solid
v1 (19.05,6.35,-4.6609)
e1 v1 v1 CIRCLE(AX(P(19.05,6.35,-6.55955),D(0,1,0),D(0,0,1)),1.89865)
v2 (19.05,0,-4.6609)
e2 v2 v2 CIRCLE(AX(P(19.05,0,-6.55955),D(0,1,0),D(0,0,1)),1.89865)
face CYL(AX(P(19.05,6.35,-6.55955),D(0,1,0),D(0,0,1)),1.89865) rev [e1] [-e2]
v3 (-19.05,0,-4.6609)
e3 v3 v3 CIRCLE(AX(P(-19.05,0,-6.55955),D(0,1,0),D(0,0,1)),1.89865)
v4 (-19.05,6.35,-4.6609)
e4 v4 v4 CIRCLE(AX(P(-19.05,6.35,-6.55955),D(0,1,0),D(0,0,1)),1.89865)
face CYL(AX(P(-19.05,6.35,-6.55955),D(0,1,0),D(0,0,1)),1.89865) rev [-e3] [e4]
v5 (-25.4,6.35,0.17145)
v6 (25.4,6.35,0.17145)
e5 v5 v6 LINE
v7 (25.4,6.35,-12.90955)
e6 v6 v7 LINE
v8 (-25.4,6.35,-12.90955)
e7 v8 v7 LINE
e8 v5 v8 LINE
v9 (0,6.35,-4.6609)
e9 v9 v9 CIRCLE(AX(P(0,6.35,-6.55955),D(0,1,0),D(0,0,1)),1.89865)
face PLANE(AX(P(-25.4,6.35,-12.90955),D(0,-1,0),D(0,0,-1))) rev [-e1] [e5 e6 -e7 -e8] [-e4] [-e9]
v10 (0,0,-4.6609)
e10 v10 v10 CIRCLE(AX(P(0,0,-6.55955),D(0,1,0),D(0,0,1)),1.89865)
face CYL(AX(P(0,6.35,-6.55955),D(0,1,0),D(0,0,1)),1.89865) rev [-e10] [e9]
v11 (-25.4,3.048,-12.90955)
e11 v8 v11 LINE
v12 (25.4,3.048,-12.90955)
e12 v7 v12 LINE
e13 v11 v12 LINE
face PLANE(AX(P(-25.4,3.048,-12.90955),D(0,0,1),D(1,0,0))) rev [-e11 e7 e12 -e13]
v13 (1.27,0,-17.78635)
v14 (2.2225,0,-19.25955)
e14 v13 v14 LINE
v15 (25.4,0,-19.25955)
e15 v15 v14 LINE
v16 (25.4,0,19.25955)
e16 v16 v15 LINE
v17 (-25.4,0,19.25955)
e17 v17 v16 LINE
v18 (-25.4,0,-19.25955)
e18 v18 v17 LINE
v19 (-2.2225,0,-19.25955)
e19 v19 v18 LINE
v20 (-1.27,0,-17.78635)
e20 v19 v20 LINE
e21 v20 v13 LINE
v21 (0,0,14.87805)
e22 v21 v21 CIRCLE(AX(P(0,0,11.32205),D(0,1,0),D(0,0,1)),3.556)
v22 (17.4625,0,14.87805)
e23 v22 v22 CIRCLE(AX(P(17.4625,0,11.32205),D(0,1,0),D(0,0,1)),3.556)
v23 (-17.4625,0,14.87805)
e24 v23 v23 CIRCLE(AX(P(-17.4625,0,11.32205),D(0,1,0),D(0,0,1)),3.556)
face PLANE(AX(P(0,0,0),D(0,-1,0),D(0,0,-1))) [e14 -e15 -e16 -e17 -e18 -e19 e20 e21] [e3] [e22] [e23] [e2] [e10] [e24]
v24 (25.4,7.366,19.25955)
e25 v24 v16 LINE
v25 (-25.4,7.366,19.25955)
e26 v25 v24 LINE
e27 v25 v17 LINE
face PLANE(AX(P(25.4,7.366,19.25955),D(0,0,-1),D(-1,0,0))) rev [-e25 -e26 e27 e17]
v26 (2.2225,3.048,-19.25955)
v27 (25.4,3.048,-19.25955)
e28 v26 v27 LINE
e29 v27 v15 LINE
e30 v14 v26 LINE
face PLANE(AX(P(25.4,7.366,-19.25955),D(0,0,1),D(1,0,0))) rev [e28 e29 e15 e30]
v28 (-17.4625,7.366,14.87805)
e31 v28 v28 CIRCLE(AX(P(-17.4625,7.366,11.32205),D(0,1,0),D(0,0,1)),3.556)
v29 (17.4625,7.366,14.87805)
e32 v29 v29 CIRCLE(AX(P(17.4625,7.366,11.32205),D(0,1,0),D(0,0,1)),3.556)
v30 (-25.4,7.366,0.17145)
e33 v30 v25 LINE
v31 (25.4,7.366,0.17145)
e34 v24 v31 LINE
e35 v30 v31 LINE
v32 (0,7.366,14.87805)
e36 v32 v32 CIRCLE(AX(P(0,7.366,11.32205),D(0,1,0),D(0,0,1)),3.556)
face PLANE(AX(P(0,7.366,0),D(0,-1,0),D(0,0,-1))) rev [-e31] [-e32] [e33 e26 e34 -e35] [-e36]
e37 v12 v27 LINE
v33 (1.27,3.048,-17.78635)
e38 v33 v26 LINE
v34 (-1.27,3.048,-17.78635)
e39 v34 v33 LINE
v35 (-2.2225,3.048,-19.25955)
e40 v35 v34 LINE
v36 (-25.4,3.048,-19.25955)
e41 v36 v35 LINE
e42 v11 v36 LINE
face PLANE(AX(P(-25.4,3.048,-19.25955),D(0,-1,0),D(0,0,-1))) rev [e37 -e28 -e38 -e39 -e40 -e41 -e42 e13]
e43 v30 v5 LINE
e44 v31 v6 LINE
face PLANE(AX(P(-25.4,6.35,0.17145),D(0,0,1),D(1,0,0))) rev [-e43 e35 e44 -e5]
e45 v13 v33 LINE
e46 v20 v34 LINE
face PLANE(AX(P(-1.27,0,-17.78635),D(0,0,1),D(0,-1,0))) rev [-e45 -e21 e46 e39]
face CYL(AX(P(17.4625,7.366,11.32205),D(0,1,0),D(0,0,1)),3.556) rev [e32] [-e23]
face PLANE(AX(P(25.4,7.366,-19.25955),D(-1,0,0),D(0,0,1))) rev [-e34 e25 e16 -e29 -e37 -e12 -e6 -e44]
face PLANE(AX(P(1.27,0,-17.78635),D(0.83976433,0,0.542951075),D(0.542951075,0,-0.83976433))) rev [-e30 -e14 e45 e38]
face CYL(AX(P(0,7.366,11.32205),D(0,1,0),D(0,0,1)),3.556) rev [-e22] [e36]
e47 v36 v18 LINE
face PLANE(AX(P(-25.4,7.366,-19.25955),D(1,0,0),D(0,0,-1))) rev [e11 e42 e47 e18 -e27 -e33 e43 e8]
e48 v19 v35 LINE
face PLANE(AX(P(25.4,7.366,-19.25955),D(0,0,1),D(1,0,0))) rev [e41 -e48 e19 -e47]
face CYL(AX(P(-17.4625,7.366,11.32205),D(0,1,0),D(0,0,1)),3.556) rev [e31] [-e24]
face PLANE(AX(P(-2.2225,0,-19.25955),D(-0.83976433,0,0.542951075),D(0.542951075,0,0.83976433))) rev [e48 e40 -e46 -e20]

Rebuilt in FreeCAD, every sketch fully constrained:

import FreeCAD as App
import Part
import Sketcher
Q = App.Units.Quantity

doc = App.newDocument("Part")
body = doc.addObject("PartDesign::Body", "Body")

# Sketch on XZ plane
sketch1 = body.newObject("Sketcher::SketchObject", "Sketch")
sketch1.AttachmentSupport = (doc.getObject("XZ_Plane"), [""])
sketch1.MapMode = "FlatFace"
sketch1.addGeometry([
    Part.LineSegment(App.Vector(-25, -19, 0), App.Vector(-25, 19, 0)),
    Part.LineSegment(App.Vector(-25, 19, 0), App.Vector(25, 19, 0)),
    Part.LineSegment(App.Vector(25, 19, 0), App.Vector(25, -19, 0)),
    Part.LineSegment(App.Vector(25, -19, 0), App.Vector(-25, -19, 0)),
], False)
sketch1.addConstraint([
    Sketcher.Constraint("Coincident", 0, 2, 1, 1),
    Sketcher.Constraint("Coincident", 1, 2, 2, 1),
    Sketcher.Constraint("Coincident", 2, 2, 3, 1),
    Sketcher.Constraint("Coincident", 3, 2, 0, 1),
    Sketcher.Constraint("Vertical", 0),
    Sketcher.Constraint("Horizontal", 1),
    Sketcher.Constraint("Vertical", 2),
    Sketcher.Constraint("Horizontal", 3),
    Sketcher.Constraint("Symmetric", 0, 2, 2, 2, -1, 1),
    Sketcher.Constraint("DistanceX", 1, 1, 1, 2, Q("2 in")),
    Sketcher.Constraint("DistanceY", 0, 1, 0, 2, Q("1.5165 in")),
])
pad1 = body.newObject("PartDesign::Pad", "Pad")
pad1.Profile = sketch1
pad1.Length = Q("0.29 in")
pad1.Reversed = True

# Sketch on YZ plane
sketch2 = body.newObject("Sketcher::SketchObject", "Sketch001")
sketch2.AttachmentSupport = (doc.getObject("YZ_Plane"), [""])
sketch2.MapMode = "FlatFace"
sketch2.AttachmentOffset = App.Placement(App.Vector(0, 0, 1 * 25.4), App.Rotation())
sketch2.addGeometry([
    Part.LineSegment(App.Vector(3, -12.9, 0), App.Vector(3, -19.3, 0)),  # 0
    Part.LineSegment(App.Vector(3, -19.3, 0), App.Vector(7.4, -19.3, 0)),  # 1
    Part.LineSegment(App.Vector(7.4, -19.3, 0), App.Vector(7.4, 0.2, 0)),  # 2
    Part.LineSegment(App.Vector(7.4, 0.2, 0), App.Vector(6.3, 0.2, 0)),  # 3
    Part.LineSegment(App.Vector(6.3, 0.2, 0), App.Vector(6.3, -12.9, 0)),  # 4
    Part.LineSegment(App.Vector(6.3, -12.9, 0), App.Vector(3, -12.9, 0)),  # 5
], False)
sketch2.addConstraint([
    Sketcher.Constraint("Coincident", 0, 2, 1, 1),
    Sketcher.Constraint("Coincident", 1, 2, 2, 1),
    Sketcher.Constraint("Coincident", 2, 2, 3, 1),
    Sketcher.Constraint("Coincident", 3, 2, 4, 1),
    Sketcher.Constraint("Coincident", 4, 2, 5, 1),
    Sketcher.Constraint("Coincident", 5, 2, 0, 1),
    Sketcher.Constraint("Vertical", 0),
    Sketcher.Constraint("Horizontal", 1),
    Sketcher.Constraint("Vertical", 2),
    Sketcher.Constraint("Horizontal", 3),
    Sketcher.Constraint("Vertical", 4),
    Sketcher.Constraint("Horizontal", 5),
    Sketcher.Constraint("DistanceX", 1, 1, 1, 2, Q("0.17 in")),
    Sketcher.Constraint("DistanceX", 3, 2, 3, 1, Q("0.04 in")),
    Sketcher.Constraint("DistanceY", 0, 2, 0, 1, Q("0.25 in")),
    Sketcher.Constraint("DistanceY", 2, 1, 2, 2, Q("0.765 in")),
    Sketcher.Constraint("DistanceX", -1, 1, 0, 2, Q("0.12 in")),
    Sketcher.Constraint("DistanceY", 0, 2, -1, 1, Q("19.25955 mm")),
])
pocket1 = body.newObject("PartDesign::Pocket", "Pocket")
pocket1.Profile = sketch2
pocket1.Type = "ThroughAll"

# Sketch on XZ plane
sketch3 = body.newObject("Sketcher::SketchObject", "Sketch002")
sketch3.AttachmentSupport = (doc.getObject("XZ_Plane"), [""])
sketch3.MapMode = "FlatFace"
sketch3.AttachmentOffset = App.Placement(App.Vector(0, 0, -0.29 * 25.4), App.Rotation())
sketch3.addGeometry([
    Part.Circle(App.Vector(17.5, 11.3, 0), App.Vector(0, 0, 1), 3.6),
    Part.Circle(App.Vector(0, 11.3, 0), App.Vector(0, 0, 1), 3.6),
    Part.Circle(App.Vector(-17.5, 11.3, 0), App.Vector(0, 0, 1), 3.6),
], False)
sketch3.addConstraint([
    Sketcher.Constraint("Equal", 0, 1),
    Sketcher.Constraint("Equal", 1, 2),
    Sketcher.Constraint("Symmetric", 0, 3, 2, 3, -2),
    Sketcher.Constraint("PointOnObject", 1, 3, -2),
    Sketcher.Constraint("Horizontal", 0, 3, 1, 3),
    Sketcher.Constraint("Diameter", 0, Q("0.28 in")),
    Sketcher.Constraint("DistanceX", -1, 1, 0, 3, Q("0.6875 in")),
    Sketcher.Constraint("DistanceY", -1, 1, 0, 3, Q("11.32205 mm")),
])
doc.recompute()
hole = body.newObject("PartDesign::Hole", "Hole")
hole.Profile = sketch3
hole.ThreadType = "None"
hole.Diameter = Q("0.28 in")
hole.DepthType = "ThroughAll"
hole.Reversed = True

# Sketch on XZ plane
sketch4 = body.newObject("Sketcher::SketchObject", "Sketch003")
sketch4.AttachmentSupport = (doc.getObject("XZ_Plane"), [""])
sketch4.MapMode = "FlatFace"
sketch4.AttachmentOffset = App.Placement(App.Vector(0, 0, -0.12 * 25.4), App.Rotation())
sketch4.addGeometry([
    Part.LineSegment(App.Vector(-2.2, -19.3, 0), App.Vector(-1.3, -17.8, 0)),
    Part.LineSegment(App.Vector(-1.3, -17.8, 0), App.Vector(1.3, -17.8, 0)),
    Part.LineSegment(App.Vector(1.3, -17.8, 0), App.Vector(2.2, -19.3, 0)),
    Part.LineSegment(App.Vector(2.2, -19.3, 0), App.Vector(-2.2, -19.3, 0)),
], False)
sketch4.addConstraint([
    Sketcher.Constraint("Coincident", 0, 2, 1, 1),
    Sketcher.Constraint("Coincident", 1, 2, 2, 1),
    Sketcher.Constraint("Coincident", 2, 2, 3, 1),
    Sketcher.Constraint("Coincident", 3, 2, 0, 1),
    Sketcher.Constraint("Horizontal", 1),
    Sketcher.Constraint("Horizontal", 3),
    Sketcher.Constraint("Equal", 0, 2),
    Sketcher.Constraint("DistanceX", 1, 1, 1, 2, Q("0.1 in")),
    Sketcher.Constraint("DistanceX", 3, 2, 3, 1, Q("0.175 in")),
    Sketcher.Constraint("DistanceX", 0, 2, -1, 1, Q("0.05 in")),
    Sketcher.Constraint("DistanceY", 2, 2, 1, 2, Q("0.058 in")),
    Sketcher.Constraint("DistanceY", 0, 2, -1, 1, Q("17.78635 mm")),
])
pocket2 = body.newObject("PartDesign::Pocket", "Pocket001")
pocket2.Profile = sketch4
pocket2.Type = "ThroughAll"
pocket2.Reversed = True

# Sketch on XZ plane
sketch5 = body.newObject("Sketcher::SketchObject", "Sketch004")
sketch5.AttachmentSupport = (doc.getObject("XZ_Plane"), [""])
sketch5.MapMode = "FlatFace"
sketch5.AttachmentOffset = App.Placement(App.Vector(0, 0, -0.25 * 25.4), App.Rotation())
sketch5.addGeometry([
    Part.Circle(App.Vector(19.1, -6.6, 0), App.Vector(0, 0, 1), 1.9),
    Part.Circle(App.Vector(0, -6.6, 0), App.Vector(0, 0, 1), 1.9),
    Part.Circle(App.Vector(-19.1, -6.6, 0), App.Vector(0, 0, 1), 1.9),
], False)
sketch5.addConstraint([
    Sketcher.Constraint("Equal", 0, 1),
    Sketcher.Constraint("Equal", 1, 2),
    Sketcher.Constraint("Symmetric", 0, 3, 2, 3, -2),
    Sketcher.Constraint("PointOnObject", 1, 3, -2),
    Sketcher.Constraint("Horizontal", 0, 3, 1, 3),
    Sketcher.Constraint("Diameter", 0, Q("0.1495 in")),
    Sketcher.Constraint("DistanceX", 2, 3, 0, 3, Q("1.5 in")),
    Sketcher.Constraint("DistanceY", 0, 3, -1, 1, Q("6.55955 mm")),
])
doc.recompute()
hole2 = body.newObject("PartDesign::Hole", "Hole001")
hole2.Profile = sketch5
hole2.ThreadType = "None"
hole2.Diameter = Q("0.1495 in")
hole2.DepthType = "ThroughAll"
hole2.Reversed = True

doc.recompute()
